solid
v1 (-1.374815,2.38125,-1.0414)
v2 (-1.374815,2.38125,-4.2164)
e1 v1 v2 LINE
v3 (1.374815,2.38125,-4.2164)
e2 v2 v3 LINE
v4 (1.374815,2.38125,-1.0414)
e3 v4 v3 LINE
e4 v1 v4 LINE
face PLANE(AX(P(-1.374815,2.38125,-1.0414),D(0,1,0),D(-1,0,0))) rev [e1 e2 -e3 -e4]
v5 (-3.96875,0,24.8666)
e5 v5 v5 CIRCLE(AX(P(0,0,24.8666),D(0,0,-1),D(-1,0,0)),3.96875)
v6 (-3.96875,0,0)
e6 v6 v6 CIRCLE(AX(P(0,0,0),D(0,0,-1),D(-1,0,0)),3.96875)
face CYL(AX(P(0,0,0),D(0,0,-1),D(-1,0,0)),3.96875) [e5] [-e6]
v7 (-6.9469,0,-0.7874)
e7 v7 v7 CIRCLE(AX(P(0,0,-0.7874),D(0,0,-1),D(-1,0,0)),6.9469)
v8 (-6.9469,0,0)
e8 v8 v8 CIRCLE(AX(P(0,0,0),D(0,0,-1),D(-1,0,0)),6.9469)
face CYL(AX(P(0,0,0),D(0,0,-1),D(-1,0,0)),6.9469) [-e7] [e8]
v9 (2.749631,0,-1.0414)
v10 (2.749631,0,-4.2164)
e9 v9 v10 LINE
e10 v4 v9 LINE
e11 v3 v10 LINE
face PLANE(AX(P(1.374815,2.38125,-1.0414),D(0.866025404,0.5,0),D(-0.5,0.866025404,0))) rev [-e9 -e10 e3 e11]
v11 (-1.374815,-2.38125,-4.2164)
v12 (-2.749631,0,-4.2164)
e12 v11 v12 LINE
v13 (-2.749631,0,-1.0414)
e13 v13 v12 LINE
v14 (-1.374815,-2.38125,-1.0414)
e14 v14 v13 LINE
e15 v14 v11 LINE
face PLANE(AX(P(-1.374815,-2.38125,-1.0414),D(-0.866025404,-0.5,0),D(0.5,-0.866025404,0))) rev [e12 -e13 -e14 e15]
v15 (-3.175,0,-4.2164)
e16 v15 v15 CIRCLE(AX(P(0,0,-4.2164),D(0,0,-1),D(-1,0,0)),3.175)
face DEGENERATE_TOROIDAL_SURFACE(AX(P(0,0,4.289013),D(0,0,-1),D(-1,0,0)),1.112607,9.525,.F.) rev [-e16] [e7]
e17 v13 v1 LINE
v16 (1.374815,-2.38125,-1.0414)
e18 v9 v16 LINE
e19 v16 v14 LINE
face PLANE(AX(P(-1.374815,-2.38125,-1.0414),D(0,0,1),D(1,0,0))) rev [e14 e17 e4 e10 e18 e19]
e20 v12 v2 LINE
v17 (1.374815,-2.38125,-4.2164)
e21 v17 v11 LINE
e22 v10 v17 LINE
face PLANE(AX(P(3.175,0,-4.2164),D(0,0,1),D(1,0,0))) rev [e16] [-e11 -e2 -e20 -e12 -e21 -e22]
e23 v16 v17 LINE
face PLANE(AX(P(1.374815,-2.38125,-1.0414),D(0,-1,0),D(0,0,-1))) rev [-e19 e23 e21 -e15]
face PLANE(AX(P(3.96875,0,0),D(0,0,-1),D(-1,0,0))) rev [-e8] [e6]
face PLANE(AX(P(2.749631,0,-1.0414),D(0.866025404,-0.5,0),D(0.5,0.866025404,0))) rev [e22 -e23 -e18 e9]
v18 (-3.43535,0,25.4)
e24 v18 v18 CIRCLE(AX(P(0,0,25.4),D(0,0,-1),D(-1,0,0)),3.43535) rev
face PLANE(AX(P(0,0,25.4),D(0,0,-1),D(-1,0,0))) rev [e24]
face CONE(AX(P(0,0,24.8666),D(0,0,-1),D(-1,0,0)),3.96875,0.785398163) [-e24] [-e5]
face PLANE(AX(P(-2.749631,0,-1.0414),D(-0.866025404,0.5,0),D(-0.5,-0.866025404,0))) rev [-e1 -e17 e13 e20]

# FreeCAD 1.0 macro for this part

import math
import FreeCAD as App
import Part
import Sketcher
from FreeCAD import Vector
Q = App.Units.Quantity


def edges_at(feature, points):
    """Names of the edges that pass closest to the given points."""
    edges = feature.Shape.Edges
    near = lambda p: min(range(len(edges)), key=lambda i: edges[i].distToShape(Part.Vertex(*p))[0])
    return sorted({f"Edge{near(p) + 1}" for p in points})

doc = App.newDocument("Part")
body = doc.addObject("PartDesign::Body", "Body")

# Sketch on XZ plane
sketch1 = body.newObject("Sketcher::SketchObject", "Sketch")
sketch1.AttachmentSupport = (doc.getObject("XZ_Plane"), [""])
sketch1.MapMode = "FlatFace"
sketch1.addGeometry(Part.LineSegment(Vector(0, 25.4, 0), Vector(4, 25.4, 0)), False)
sketch1.addGeometry(Part.LineSegment(Vector(4, 25.4, 0), Vector(4, 0, 0)), False)
sketch1.addGeometry(Part.LineSegment(Vector(4, 0, 0), Vector(6.9, 0, 0)), False)
sketch1.addGeometry(Part.LineSegment(Vector(6.9, 0, 0), Vector(6.9, -0.8, 0)), False)
sketch1.addGeometry(Part.ArcOfCircle(Part.Circle(Vector(-1.1, 4.3, 0), Vector(0, 0, 1), 9.5), math.radians(-63), math.radians(-32)), False)
sketch1.addGeometry(Part.LineSegment(Vector(3.2, -4.2, 0), Vector(0, -4.2, 0)), False)
sketch1.addGeometry(Part.LineSegment(Vector(0, -4.2, 0), Vector(0, 25.4, 0)), False)
sketch1.addConstraint(Sketcher.Constraint("Coincident", 0, 2, 1, 1))
sketch1.addConstraint(Sketcher.Constraint("Coincident", 1, 2, 2, 1))
sketch1.addConstraint(Sketcher.Constraint("Coincident", 2, 2, 3, 1))
sketch1.addConstraint(Sketcher.Constraint("Coincident", 3, 2, 4, 2))
sketch1.addConstraint(Sketcher.Constraint("Coincident", 4, 1, 5, 1))
sketch1.addConstraint(Sketcher.Constraint("Coincident", 5, 2, 6, 1))
sketch1.addConstraint(Sketcher.Constraint("Coincident", 6, 2, 0, 1))
sketch1.addConstraint(Sketcher.Constraint("Horizontal", 0))
sketch1.addConstraint(Sketcher.Constraint("Vertical", 1))
sketch1.addConstraint(Sketcher.Constraint("Horizontal", 2))
sketch1.addConstraint(Sketcher.Constraint("Vertical", 3))
sketch1.addConstraint(Sketcher.Constraint("Horizontal", 5))
sketch1.addConstraint(Sketcher.Constraint("Vertical", 6))
sketch1.addConstraint(Sketcher.Constraint("PointOnObject", 1, 2, -1))
sketch1.addConstraint(Sketcher.Constraint("PointOnObject", 5, 2, -2))
sketch1.addConstraint(Sketcher.Constraint("DistanceY", 1, 2, 1, 1, Q("1 in")))
sketch1.addConstraint(Sketcher.Constraint("Radius", 4, Q("0.375 in")))
sketch1.addConstraint(Sketcher.Constraint("DistanceX", 0, 1, 0, 2, Q("0.15625 in")))
sketch1.addConstraint(Sketcher.Constraint("DistanceX", 5, 2, 5, 1, Q("0.125 in")))
sketch1.addConstraint(Sketcher.Constraint("DistanceY", 3, 2, 3, 1, Q("0.031 in")))
sketch1.addConstraint(Sketcher.Constraint("DistanceY", 6, 1, 6, 2, Q("1.166 in")))
sketch1.addConstraint(Sketcher.Constraint("DistanceX", -1, 1, 2, 2, Q("0.2735 in")))
revolution = body.newObject("PartDesign::Revolution", "Revolution")
revolution.Profile = sketch1
revolution.ReferenceAxis = (sketch1, ["V_Axis"])
revolution.Angle = 360

# Sketch on XY plane
sketch2 = body.newObject("Sketcher::SketchObject", "Sketch001")
sketch2.AttachmentSupport = (doc.getObject("XY_Plane"), [""])
sketch2.MapMode = "FlatFace"
sketch2.AttachmentOffset = App.Placement(Vector(0, 0, -0.166 * 25.4), App.Rotation())
sketch2.addGeometry(Part.LineSegment(Vector(-2.7, 0, 0), Vector(-1.4, 2.4, 0)), False)
sketch2.addGeometry(Part.LineSegment(Vector(-1.4, 2.4, 0), Vector(1.4, 2.4, 0)), False)
sketch2.addGeometry(Part.LineSegment(Vector(1.4, 2.4, 0), Vector(2.7, 0, 0)), False)
sketch2.addGeometry(Part.LineSegment(Vector(2.7, 0, 0), Vector(1.4, -2.4, 0)), False)
sketch2.addGeometry(Part.LineSegment(Vector(1.4, -2.4, 0), Vector(-1.4, -2.4, 0)), False)
sketch2.addGeometry(Part.LineSegment(Vector(-1.4, -2.4, 0), Vector(-2.7, 0, 0)), False)
sketch2.addConstraint(Sketcher.Constraint("Coincident", 0, 2, 1, 1))
sketch2.addConstraint(Sketcher.Constraint("Coincident", 1, 2, 2, 1))
sketch2.addConstraint(Sketcher.Constraint("Coincident", 2, 2, 3, 1))
sketch2.addConstraint(Sketcher.Constraint("Coincident", 3, 2, 4, 1))
sketch2.addConstraint(Sketcher.Constraint("Coincident", 4, 2, 5, 1))
sketch2.addConstraint(Sketcher.Constraint("Coincident", 5, 2, 0, 1))
sketch2.addConstraint(Sketcher.Constraint("Horizontal", 1))
sketch2.addConstraint(Sketcher.Constraint("Horizontal", 4))
sketch2.addConstraint(Sketcher.Constraint("Symmetric", 0, 2, 3, 2, -1, 1))
sketch2.addConstraint(Sketcher.Constraint("Symmetric", 2, 2, 5, 2, -1, 1))
sketch2.addConstraint(Sketcher.Constraint("PointOnObject", 2, 2, -1))
sketch2.addConstraint(Sketcher.Constraint("Parallel", 2, 5))
sketch2.addConstraint(Sketcher.Constraint("Vertical", 1, 2, 3, 2))
sketch2.addConstraint(Sketcher.Constraint("Angle", 0, Q("60 deg")))
sketch2.addConstraint(Sketcher.Constraint("DistanceY", -1, 1, 0, 2, Q("0.09375 in")))
sketch2.addConstraint(Sketcher.Constraint("DistanceX", 1, 1, 1, 2, 2.749631))
pocket1 = body.newObject("PartDesign::Pocket", "Pocket")
pocket1.Profile = sketch2
pocket1.Length = Q("0.125 in")
pocket1.Reversed = True
doc.recompute()

chamfer = body.newObject("PartDesign::Chamfer", "Chamfer")
chamfer.Base = (pocket1, edges_at(pocket1, [(3.969, 0, 25.4)]))
chamfer.Size = Q("0.021 in")

doc.recompute()
